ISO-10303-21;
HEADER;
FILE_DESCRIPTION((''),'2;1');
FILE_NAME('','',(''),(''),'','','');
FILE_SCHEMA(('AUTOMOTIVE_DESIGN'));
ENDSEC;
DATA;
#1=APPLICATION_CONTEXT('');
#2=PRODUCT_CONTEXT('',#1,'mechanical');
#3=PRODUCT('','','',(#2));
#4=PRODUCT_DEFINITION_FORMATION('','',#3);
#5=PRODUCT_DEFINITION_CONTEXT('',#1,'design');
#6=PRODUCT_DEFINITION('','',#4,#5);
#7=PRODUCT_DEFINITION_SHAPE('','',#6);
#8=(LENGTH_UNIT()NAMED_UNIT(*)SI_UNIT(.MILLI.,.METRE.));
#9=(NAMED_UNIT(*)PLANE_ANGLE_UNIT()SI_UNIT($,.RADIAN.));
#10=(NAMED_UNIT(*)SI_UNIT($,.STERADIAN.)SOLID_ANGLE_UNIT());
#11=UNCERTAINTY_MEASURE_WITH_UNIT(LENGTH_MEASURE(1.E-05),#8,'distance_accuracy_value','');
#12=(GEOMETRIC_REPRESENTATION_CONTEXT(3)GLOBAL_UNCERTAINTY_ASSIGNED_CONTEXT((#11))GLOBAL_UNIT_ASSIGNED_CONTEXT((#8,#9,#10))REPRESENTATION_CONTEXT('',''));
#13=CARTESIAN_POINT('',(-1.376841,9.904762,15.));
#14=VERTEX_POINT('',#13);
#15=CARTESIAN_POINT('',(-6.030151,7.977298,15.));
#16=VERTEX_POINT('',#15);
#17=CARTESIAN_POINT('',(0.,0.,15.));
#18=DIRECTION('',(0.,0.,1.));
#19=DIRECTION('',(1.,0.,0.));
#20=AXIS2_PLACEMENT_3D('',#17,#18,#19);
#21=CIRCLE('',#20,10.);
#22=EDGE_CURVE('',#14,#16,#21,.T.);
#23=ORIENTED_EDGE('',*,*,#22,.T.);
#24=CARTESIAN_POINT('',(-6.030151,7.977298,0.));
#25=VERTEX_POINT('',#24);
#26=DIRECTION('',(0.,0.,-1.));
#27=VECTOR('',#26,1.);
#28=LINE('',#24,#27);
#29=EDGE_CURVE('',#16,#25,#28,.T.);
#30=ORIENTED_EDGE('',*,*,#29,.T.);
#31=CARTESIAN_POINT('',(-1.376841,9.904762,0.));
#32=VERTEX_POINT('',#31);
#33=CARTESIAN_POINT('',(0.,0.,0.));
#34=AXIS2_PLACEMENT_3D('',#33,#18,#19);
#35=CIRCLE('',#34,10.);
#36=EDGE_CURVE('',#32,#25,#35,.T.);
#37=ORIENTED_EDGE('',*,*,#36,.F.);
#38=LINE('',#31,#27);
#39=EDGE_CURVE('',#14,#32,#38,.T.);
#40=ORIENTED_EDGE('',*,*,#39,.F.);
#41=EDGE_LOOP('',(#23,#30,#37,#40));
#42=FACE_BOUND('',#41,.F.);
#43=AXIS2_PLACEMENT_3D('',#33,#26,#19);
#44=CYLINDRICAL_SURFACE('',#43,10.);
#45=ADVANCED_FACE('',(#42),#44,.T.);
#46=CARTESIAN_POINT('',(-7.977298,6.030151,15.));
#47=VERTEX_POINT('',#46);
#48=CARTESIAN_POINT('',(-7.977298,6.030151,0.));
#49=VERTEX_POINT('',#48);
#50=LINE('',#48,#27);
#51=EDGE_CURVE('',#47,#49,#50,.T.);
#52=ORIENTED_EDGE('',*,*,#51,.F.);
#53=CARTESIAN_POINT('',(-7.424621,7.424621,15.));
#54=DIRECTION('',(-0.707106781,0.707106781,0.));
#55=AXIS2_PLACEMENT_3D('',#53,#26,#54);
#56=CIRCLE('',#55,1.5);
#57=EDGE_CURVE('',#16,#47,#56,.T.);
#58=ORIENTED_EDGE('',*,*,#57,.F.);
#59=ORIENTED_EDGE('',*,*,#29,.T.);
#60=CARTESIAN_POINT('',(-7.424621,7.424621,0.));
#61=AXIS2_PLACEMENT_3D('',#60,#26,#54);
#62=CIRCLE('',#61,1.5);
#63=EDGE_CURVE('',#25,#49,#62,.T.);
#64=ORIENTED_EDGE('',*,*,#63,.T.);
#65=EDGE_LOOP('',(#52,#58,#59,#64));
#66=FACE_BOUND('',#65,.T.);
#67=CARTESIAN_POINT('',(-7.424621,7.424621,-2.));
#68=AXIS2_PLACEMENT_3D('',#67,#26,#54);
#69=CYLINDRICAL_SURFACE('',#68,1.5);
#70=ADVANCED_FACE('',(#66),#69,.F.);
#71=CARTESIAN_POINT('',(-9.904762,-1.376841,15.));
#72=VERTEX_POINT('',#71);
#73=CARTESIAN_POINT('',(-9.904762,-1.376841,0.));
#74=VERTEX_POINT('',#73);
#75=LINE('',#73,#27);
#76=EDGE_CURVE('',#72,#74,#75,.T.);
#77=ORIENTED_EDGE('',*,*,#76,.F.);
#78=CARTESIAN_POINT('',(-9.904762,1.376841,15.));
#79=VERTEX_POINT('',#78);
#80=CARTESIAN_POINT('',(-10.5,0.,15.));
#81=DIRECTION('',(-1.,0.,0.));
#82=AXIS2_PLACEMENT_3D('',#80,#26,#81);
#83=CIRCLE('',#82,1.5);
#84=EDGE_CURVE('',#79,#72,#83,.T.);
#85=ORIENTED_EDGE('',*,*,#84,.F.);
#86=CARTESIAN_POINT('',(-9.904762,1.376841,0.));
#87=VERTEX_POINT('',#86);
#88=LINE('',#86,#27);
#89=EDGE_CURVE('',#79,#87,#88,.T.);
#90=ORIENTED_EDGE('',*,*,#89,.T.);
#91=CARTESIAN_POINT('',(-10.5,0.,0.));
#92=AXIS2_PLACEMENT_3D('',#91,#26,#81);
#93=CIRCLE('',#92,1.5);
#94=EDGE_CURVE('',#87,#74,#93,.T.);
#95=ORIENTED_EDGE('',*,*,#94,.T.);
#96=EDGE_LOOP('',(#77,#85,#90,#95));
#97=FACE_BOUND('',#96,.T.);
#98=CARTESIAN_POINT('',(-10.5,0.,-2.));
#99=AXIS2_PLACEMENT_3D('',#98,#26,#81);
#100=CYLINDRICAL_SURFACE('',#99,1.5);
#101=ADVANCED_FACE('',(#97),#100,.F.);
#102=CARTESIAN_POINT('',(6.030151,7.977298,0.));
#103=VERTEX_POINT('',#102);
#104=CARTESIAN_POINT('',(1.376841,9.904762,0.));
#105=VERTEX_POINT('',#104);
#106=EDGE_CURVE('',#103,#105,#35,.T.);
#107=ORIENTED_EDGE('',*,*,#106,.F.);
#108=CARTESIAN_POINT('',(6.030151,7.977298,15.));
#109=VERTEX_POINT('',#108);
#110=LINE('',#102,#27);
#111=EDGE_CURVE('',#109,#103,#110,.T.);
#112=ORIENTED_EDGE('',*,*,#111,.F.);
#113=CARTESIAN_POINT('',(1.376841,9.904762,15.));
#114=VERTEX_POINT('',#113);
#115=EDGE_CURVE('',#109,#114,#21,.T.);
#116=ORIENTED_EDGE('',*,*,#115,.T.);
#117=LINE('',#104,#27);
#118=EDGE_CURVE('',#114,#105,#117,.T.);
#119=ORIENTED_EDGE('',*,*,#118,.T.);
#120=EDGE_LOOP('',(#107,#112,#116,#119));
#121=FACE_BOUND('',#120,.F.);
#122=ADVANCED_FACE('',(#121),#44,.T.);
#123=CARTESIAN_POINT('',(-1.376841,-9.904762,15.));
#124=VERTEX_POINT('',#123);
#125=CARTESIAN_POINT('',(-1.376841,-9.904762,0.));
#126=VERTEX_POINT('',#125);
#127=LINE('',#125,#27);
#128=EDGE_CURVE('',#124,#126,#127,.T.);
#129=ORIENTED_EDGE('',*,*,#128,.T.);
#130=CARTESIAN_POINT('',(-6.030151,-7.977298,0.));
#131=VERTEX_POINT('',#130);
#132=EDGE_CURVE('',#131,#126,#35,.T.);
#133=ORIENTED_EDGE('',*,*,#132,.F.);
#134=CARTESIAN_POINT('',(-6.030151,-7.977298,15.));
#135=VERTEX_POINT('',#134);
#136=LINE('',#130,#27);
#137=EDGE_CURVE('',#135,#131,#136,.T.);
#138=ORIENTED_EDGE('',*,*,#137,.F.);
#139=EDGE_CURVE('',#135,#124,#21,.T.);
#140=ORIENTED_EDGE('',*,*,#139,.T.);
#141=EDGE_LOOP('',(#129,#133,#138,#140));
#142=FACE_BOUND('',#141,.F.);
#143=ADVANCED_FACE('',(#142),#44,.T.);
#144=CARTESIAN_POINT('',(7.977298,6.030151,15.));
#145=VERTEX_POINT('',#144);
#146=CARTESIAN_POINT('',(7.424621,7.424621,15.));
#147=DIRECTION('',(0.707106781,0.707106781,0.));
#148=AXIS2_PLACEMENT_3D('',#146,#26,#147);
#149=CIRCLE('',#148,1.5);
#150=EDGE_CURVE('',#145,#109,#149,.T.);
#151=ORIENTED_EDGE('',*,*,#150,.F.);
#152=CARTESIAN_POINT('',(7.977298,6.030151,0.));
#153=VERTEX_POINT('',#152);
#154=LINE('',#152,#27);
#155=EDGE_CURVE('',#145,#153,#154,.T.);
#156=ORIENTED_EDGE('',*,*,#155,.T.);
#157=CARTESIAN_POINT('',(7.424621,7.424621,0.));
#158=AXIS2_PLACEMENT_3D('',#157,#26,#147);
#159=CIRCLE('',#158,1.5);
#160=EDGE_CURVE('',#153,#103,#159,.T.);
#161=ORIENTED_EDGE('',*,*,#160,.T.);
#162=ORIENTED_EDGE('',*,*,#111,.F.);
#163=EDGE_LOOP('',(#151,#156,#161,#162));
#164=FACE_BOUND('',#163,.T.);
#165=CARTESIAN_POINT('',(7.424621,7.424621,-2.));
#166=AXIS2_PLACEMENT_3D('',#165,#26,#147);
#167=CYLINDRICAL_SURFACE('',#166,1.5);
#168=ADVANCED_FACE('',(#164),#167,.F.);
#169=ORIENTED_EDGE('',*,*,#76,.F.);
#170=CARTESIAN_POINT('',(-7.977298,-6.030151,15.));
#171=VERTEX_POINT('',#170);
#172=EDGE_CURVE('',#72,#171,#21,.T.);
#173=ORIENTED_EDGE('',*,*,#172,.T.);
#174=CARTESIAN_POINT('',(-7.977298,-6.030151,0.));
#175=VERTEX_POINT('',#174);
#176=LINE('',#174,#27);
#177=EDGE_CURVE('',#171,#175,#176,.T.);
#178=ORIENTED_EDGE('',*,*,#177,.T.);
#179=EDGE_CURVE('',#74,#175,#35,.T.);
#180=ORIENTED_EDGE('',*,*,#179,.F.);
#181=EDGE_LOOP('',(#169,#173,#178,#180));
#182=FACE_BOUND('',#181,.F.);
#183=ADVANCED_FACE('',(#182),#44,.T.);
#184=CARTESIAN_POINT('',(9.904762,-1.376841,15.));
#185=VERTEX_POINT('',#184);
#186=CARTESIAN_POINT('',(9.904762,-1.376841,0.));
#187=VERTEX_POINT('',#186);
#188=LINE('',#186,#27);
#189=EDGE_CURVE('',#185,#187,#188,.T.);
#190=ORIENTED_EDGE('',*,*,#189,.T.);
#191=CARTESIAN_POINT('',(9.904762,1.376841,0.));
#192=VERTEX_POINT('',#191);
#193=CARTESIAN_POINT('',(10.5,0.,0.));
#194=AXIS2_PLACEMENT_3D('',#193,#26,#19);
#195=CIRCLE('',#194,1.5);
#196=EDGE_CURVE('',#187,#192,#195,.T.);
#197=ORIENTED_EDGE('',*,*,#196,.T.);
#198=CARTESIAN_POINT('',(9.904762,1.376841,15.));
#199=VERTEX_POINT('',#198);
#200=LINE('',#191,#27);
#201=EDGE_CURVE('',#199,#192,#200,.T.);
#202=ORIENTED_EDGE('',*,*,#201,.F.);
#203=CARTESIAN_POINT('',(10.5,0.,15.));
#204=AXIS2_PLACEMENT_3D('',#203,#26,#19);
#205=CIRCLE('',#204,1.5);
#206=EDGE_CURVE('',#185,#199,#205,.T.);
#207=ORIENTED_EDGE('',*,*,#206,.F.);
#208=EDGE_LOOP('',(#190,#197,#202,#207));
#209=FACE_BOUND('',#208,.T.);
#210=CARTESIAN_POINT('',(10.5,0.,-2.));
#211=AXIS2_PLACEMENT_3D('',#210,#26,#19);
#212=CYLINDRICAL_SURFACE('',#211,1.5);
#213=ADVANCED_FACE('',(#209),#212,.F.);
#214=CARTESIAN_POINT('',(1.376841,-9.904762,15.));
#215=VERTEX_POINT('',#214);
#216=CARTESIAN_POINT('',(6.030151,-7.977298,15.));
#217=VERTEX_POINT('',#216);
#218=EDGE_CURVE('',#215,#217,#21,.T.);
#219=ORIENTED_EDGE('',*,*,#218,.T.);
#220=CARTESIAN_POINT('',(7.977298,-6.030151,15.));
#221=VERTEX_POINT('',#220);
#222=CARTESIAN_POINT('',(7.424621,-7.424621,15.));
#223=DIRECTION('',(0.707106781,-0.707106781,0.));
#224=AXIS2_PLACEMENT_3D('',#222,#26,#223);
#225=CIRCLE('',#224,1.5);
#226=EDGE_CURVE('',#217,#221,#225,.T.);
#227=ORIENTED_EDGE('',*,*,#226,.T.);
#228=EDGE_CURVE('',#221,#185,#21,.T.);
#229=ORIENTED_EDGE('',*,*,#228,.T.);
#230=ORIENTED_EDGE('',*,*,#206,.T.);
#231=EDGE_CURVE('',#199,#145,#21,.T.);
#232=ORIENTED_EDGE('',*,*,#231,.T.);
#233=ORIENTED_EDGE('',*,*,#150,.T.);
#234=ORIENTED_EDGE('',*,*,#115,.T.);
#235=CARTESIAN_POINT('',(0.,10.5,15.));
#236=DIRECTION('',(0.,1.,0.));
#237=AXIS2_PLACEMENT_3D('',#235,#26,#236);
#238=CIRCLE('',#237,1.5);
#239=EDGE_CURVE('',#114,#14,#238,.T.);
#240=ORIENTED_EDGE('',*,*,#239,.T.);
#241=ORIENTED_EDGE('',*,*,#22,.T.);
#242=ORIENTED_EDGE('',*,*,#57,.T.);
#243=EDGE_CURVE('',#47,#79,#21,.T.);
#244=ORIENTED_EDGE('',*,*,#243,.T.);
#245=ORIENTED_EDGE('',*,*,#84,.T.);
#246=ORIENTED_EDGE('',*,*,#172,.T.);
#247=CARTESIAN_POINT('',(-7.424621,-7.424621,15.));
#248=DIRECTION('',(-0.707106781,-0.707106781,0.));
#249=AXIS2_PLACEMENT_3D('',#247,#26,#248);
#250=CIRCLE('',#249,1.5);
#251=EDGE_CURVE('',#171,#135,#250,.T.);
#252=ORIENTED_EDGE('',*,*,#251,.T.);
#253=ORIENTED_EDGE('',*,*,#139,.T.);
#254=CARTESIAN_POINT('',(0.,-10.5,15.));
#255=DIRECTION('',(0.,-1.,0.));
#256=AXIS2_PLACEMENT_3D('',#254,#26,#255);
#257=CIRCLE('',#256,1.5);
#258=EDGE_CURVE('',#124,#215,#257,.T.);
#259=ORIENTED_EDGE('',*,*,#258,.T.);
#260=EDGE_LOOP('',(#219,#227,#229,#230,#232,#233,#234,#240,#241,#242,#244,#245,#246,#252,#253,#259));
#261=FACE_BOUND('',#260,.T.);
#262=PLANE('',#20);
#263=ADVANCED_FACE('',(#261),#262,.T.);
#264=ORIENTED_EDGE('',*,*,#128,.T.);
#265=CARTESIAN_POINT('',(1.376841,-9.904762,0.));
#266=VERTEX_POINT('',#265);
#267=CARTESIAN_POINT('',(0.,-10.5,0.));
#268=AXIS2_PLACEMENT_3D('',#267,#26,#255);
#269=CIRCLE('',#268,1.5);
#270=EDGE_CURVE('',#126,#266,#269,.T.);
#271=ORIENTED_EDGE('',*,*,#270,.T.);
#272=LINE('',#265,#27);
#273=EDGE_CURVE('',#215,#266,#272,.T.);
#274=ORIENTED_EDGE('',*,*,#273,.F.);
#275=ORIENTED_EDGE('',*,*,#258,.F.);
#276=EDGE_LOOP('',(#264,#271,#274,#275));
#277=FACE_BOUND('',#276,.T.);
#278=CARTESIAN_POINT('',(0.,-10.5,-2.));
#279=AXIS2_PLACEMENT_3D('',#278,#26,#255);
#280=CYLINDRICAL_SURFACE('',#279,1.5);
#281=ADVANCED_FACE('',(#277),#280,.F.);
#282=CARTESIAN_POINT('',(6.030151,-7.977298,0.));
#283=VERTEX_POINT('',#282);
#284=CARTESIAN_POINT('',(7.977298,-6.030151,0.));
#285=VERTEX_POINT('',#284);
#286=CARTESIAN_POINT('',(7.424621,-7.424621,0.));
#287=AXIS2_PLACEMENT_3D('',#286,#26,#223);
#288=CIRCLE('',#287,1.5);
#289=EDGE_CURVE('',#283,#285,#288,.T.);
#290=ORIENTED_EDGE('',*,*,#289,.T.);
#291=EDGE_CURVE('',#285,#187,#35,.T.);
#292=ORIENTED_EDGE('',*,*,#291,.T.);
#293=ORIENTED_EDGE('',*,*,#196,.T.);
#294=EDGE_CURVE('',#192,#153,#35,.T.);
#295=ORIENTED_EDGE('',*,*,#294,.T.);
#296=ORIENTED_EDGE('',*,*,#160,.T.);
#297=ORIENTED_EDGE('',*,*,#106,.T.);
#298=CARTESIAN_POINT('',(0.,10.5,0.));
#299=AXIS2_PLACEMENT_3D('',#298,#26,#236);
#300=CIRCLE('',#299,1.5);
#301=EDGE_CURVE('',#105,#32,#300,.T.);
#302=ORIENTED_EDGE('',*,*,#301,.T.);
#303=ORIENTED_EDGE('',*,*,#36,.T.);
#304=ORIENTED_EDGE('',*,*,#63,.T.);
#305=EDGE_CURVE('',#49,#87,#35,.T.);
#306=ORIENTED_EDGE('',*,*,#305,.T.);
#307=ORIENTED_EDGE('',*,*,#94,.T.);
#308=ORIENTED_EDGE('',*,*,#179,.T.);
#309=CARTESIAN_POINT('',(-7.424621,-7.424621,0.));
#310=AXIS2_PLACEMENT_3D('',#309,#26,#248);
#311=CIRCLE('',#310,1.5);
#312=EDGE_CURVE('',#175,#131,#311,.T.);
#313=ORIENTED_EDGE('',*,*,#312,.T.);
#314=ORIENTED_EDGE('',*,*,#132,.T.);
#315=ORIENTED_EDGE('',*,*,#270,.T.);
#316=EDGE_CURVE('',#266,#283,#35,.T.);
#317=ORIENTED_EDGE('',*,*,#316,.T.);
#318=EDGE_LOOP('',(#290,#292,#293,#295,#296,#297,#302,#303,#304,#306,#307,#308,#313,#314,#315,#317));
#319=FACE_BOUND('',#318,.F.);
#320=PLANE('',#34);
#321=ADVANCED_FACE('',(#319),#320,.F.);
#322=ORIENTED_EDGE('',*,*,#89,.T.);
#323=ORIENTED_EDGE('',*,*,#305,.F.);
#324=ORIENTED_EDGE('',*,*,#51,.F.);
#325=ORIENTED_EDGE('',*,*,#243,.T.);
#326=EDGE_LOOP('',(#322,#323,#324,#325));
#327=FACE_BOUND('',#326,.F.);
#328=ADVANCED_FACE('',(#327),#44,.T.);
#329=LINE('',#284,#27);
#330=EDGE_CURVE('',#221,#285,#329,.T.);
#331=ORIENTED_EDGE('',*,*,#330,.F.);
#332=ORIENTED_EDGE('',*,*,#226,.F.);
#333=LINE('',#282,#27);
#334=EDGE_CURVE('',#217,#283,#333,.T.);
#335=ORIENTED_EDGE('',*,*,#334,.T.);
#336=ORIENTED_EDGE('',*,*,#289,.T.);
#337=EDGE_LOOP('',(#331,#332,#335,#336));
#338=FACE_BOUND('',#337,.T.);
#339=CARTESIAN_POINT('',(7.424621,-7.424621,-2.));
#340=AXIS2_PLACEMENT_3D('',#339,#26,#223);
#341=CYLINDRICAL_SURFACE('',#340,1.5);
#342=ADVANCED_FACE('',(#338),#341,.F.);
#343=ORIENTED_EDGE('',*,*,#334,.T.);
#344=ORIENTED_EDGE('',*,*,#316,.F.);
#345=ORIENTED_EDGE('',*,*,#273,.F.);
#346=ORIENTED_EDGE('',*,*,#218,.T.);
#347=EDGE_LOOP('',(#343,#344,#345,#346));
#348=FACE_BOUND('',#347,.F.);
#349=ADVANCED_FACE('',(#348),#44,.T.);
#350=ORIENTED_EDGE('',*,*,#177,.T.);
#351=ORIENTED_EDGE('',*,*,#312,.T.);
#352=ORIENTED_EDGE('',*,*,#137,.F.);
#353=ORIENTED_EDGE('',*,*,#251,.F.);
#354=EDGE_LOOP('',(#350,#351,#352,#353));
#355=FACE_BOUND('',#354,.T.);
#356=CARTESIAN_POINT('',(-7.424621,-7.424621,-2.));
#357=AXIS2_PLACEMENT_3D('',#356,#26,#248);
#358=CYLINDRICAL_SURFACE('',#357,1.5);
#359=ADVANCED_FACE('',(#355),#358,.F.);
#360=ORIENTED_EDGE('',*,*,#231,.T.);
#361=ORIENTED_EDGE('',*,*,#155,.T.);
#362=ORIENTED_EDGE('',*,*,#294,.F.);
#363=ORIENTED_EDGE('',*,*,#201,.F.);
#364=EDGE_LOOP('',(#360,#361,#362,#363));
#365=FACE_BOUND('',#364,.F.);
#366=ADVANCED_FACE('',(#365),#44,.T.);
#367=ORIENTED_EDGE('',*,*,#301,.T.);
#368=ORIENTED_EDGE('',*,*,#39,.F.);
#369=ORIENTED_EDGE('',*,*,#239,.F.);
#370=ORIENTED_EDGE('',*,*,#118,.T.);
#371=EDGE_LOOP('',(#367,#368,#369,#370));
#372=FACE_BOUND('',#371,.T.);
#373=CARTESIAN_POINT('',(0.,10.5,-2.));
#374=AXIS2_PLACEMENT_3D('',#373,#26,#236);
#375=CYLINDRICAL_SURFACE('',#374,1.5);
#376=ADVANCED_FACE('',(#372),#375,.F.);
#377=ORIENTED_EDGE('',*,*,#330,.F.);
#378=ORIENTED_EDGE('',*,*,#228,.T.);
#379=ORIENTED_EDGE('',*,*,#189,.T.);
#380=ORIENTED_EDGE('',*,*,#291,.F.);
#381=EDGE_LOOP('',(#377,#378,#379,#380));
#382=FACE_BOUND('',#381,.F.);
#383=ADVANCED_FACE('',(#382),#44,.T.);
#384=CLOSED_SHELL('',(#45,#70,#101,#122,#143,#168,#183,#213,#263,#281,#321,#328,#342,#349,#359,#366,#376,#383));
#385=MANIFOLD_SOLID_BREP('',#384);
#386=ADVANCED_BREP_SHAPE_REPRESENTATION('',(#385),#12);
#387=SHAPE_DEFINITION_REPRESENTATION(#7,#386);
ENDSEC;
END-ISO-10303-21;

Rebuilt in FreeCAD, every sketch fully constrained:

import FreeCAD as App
import Part
import Sketcher
from FreeCAD import Vector

doc = App.newDocument("Part")
params = doc.addObject("Spreadsheet::Sheet", "Params")
for row, (alias, value) in enumerate([
    ("sketch1_diameter", "3 mm"),
    ("pad1_length", "20 mm"),
    ("sketch2_diameter", "20 mm"),
    ("pad2_length", "15 mm"),
], start=1):
    params.set(f"A{row}", alias)
    params.set(f"B{row}", "=" + value)
    params.setAlias(f"B{row}", alias)

body = doc.addObject("PartDesign::Body", "Body")

# Sketch on XY plane
sketch1 = body.newObject("Sketcher::SketchObject", "Sketch")
sketch1.AttachmentSupport = (doc.getObject("XY_Plane"), [""])
sketch1.MapMode = "FlatFace"
sketch1.AttachmentOffset = App.Placement(Vector(0, 0, -2), App.Rotation())
sketch1.addGeometry(Part.Circle(Vector(10.5, 0, 0), Vector(0, 0, 1), 1.5), False)
sketch1.addConstraint([
    Sketcher.Constraint("PointOnObject", 0, 3, -1),
    Sketcher.Constraint("Diameter", 0, 3.0),
    Sketcher.Constraint("DistanceX", -1, 1, 0, 3, 10.5),
])
sketch1.setExpression("Constraints[1]", "Params.sketch1_diameter")
pad1 = body.newObject("PartDesign::Pad", "Pad")
pad1.Profile = sketch1
pad1.setExpression("Length", "Params.pad1_length")
body2 = doc.addObject("PartDesign::Body", "Body001")
body2.AllowCompound = True
doc.recompute()

body2.BaseFeature = body
doc.recompute()

body3 = doc.addObject("PartDesign::Body", "Body002")
body3.BaseFeature = body
body3.Placement = App.Placement(Vector(0, 0, 0), App.Rotation(Vector(0, 0, 1), 45))
boolean = body2.newObject("PartDesign::Boolean", "Boolean")
boolean.Type = "Fuse"
boolean.addObjects([body3])
doc.recompute()

body4 = doc.addObject("PartDesign::Body", "Body003")
body4.BaseFeature = body
body4.Placement = App.Placement(Vector(0, 0, 0), App.Rotation(Vector(0, 0, 1), 90))
boolean2 = body2.newObject("PartDesign::Boolean", "Boolean001")
boolean2.Type = "Fuse"
boolean2.addObjects([body4])
doc.recompute()

body5 = doc.addObject("PartDesign::Body", "Body004")
body5.BaseFeature = body
body5.Placement = App.Placement(Vector(0, 0, 0), App.Rotation(Vector(0, 0, 1), 135))
boolean3 = body2.newObject("PartDesign::Boolean", "Boolean002")
boolean3.Type = "Fuse"
boolean3.addObjects([body5])
doc.recompute()

body6 = doc.addObject("PartDesign::Body", "Body005")
body6.BaseFeature = body
body6.Placement = App.Placement(Vector(0, 0, 0), App.Rotation(Vector(0, 0, 1), 180))
boolean4 = body2.newObject("PartDesign::Boolean", "Boolean003")
boolean4.Type = "Fuse"
boolean4.addObjects([body6])
doc.recompute()

body7 = doc.addObject("PartDesign::Body", "Body006")
body7.BaseFeature = body
body7.Placement = App.Placement(Vector(0, 0, 0), App.Rotation(Vector(0, 0, 1), 225))
boolean5 = body2.newObject("PartDesign::Boolean", "Boolean004")
boolean5.Type = "Fuse"
boolean5.addObjects([body7])
doc.recompute()

body8 = doc.addObject("PartDesign::Body", "Body007")
body8.BaseFeature = body
body8.Placement = App.Placement(Vector(0, 0, 0), App.Rotation(Vector(0, 0, 1), 270))
boolean6 = body2.newObject("PartDesign::Boolean", "Boolean005")
boolean6.Type = "Fuse"
boolean6.addObjects([body8])
doc.recompute()

body.Placement = App.Placement(Vector(0, 0, 0), App.Rotation(Vector(0, 0, 1), 315))
boolean7 = body2.newObject("PartDesign::Boolean", "Boolean006")
boolean7.Type = "Fuse"
boolean7.addObjects([body])
body9 = doc.addObject("PartDesign::Body", "Body008")

# Sketch on XY plane
sketch2 = body9.newObject("Sketcher::SketchObject", "Sketch001")
sketch2.AttachmentSupport = (doc.getObject("XY_Plane008"), [""])
sketch2.MapMode = "FlatFace"
sketch2.addGeometry(Part.Circle(Vector(0, 0, 0), Vector(0, 0, 1), 10), False)
sketch2.addConstraint([
    Sketcher.Constraint("Coincident", 0, 3, -1, 1),
    Sketcher.Constraint("Diameter", 0, 20.0),
])
sketch2.setExpression("Constraints[1]", "Params.sketch2_diameter")
pad2 = body9.newObject("PartDesign::Pad", "Pad001")
pad2.Profile = sketch2
pad2.setExpression("Length", "Params.pad2_length")
doc.recompute()

boolean8 = body9.newObject("PartDesign::Boolean", "Boolean007")
boolean8.Type = "Cut"
boolean8.addObjects([body2])

doc.recompute()
